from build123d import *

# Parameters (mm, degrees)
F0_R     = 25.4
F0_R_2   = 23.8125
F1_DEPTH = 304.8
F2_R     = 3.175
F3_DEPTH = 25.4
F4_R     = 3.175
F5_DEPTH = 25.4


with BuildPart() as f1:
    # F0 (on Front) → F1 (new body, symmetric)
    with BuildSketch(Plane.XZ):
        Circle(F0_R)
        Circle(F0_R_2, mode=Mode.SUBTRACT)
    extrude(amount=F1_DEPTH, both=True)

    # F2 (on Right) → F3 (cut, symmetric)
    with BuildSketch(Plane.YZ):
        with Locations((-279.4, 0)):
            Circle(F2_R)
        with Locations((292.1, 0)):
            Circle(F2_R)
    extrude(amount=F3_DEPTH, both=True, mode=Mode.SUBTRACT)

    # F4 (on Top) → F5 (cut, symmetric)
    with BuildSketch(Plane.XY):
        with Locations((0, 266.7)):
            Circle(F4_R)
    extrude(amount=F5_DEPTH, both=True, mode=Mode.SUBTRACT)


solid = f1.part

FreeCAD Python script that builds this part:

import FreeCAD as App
import Part
import Sketcher
from FreeCAD import Vector
Q = App.Units.Quantity

doc = App.newDocument("Part")
body = doc.addObject("PartDesign::Body", "Body")

# Sketch on XZ plane
sketch1 = body.newObject("Sketcher::SketchObject", "Sketch")
sketch1.AttachmentSupport = (doc.getObject("XZ_Plane"), [""])
sketch1.MapMode = "FlatFace"
sketch1.addGeometry([
    Part.Circle(Vector(0, 0, 0), Vector(0, 0, 1), 25),
    Part.Circle(Vector(0, 0, 0), Vector(0, 0, 1), 24),
], False)
sketch1.addConstraint([
    Sketcher.Constraint("Coincident", 0, 3, -1, 1),
    Sketcher.Constraint("Coincident", 1, 3, -1, 1),
    Sketcher.Constraint("Diameter", 0, Q("2 in")),
    Sketcher.Constraint("Diameter", 1, Q("1.875 in")),
])
pad1 = body.newObject("PartDesign::Pad", "Pad")
pad1.Profile = sketch1
pad1.Length = Q("24 in")
pad1.Midplane = True

# Sketch on YZ plane
sketch2 = body.newObject("Sketcher::SketchObject", "Sketch001")
sketch2.AttachmentSupport = (doc.getObject("YZ_Plane"), [""])
sketch2.MapMode = "FlatFace"
sketch2.addGeometry([
    Part.Circle(Vector(-279.4, 0, 0), Vector(0, 0, 1), 3.2),
    Part.Circle(Vector(292.1, 0, 0), Vector(0, 0, 1), 3.2),
], False)
sketch2.addConstraint([
    Sketcher.Constraint("Equal", 0, 1),
    Sketcher.Constraint("PointOnObject", 0, 3, -1),
    Sketcher.Constraint("PointOnObject", 1, 3, -1),
    Sketcher.Constraint("Diameter", 0, Q("0.25 in")),
    Sketcher.Constraint("DistanceX", 0, 3, -1, 1, Q("11 in")),
    Sketcher.Constraint("DistanceX", -1, 1, 1, 3, Q("11.5 in")),
])
pocket1 = body.newObject("PartDesign::Pocket", "Pocket")
pocket1.Profile = sketch2
pocket1.Length = Q("2 in")
pocket1.Midplane = True

# Sketch on XY plane
sketch3 = body.newObject("Sketcher::SketchObject", "Sketch002")
sketch3.AttachmentSupport = (doc.getObject("XY_Plane"), [""])
sketch3.MapMode = "FlatFace"
sketch3.addGeometry(Part.Circle(Vector(0, 266.7, 0), Vector(0, 0, 1), 3.2), False)
sketch3.addConstraint([
    Sketcher.Constraint("PointOnObject", 0, 3, -2),
    Sketcher.Constraint("Diameter", 0, Q("0.25 in")),
    Sketcher.Constraint("DistanceY", -1, 1, 0, 3, Q("10.5 in")),
])
pocket2 = body.newObject("PartDesign::Pocket", "Pocket001")
pocket2.Profile = sketch3
pocket2.Length = Q("2 in")
pocket2.Midplane = True

doc.recompute()
